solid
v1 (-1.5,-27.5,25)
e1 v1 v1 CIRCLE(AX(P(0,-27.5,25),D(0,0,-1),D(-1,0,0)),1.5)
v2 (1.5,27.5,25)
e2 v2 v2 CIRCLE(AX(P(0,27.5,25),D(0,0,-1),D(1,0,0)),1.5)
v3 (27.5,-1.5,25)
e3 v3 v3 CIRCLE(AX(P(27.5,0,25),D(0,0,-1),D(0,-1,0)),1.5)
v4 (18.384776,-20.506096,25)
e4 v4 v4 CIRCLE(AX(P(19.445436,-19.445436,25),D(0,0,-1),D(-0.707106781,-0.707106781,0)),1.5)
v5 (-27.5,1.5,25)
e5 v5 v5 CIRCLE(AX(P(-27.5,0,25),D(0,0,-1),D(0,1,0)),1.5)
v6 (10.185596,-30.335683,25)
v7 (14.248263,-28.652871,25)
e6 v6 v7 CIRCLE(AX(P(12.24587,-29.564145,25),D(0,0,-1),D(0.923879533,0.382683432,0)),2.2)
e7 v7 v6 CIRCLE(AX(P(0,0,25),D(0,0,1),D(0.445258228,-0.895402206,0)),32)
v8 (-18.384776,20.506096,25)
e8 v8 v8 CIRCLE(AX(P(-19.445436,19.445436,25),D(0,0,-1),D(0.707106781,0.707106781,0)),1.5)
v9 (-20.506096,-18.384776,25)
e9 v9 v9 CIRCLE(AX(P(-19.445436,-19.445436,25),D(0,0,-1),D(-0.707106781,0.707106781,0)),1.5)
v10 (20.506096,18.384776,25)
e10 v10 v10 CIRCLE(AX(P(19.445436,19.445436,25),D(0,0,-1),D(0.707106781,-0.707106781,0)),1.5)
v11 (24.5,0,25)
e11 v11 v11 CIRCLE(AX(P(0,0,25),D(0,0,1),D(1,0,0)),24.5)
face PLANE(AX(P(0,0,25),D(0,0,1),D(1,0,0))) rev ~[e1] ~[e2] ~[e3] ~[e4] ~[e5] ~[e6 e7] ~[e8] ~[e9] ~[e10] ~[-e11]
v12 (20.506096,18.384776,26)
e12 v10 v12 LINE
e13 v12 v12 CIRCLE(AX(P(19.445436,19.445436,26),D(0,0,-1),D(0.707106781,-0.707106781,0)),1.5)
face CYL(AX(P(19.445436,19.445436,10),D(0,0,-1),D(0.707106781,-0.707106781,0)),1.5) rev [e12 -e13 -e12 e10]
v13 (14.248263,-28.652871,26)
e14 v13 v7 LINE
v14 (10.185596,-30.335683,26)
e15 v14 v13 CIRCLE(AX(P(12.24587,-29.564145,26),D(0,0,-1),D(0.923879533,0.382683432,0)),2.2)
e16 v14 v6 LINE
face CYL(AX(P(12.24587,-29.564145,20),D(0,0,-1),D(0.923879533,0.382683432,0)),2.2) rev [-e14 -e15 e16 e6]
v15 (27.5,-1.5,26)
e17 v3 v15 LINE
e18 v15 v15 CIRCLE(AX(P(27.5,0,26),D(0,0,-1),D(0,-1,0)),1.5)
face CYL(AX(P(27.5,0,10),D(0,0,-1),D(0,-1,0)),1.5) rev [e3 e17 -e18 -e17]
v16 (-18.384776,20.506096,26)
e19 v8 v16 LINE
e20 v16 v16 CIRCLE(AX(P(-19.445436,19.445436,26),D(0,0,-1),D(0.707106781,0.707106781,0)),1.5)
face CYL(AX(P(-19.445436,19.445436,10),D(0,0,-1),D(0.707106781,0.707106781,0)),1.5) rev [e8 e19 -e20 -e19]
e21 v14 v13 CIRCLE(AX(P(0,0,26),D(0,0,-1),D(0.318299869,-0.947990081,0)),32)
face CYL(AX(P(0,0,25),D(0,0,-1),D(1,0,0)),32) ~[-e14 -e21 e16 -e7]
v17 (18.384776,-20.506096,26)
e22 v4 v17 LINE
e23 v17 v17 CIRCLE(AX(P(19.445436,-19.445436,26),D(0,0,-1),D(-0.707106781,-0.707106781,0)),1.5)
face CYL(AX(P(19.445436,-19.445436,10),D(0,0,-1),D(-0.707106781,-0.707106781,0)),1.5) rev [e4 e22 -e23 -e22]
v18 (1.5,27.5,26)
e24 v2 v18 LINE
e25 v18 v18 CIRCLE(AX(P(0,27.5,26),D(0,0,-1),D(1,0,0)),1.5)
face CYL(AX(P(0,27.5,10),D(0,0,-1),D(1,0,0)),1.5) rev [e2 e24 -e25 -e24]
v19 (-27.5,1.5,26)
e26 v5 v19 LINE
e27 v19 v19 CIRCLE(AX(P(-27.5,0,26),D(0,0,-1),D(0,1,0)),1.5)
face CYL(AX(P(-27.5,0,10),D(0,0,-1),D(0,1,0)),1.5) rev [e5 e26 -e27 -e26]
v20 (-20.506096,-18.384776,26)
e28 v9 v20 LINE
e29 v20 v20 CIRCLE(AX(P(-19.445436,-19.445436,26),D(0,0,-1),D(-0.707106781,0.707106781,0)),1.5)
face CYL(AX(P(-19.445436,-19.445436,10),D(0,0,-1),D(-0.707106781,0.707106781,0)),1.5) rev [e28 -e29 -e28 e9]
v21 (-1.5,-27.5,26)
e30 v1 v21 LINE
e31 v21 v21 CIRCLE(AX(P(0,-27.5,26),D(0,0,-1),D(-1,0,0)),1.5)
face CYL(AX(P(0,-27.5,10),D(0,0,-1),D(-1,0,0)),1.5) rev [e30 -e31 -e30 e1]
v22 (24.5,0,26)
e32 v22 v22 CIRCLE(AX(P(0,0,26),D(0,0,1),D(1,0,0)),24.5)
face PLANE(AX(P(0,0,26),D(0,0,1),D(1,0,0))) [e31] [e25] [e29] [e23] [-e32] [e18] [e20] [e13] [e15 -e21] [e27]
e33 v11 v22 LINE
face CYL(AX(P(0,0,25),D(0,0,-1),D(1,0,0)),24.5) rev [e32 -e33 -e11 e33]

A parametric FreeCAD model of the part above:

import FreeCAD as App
import Part
import Sketcher

V = App.Vector

doc = App.newDocument("Part")
body = doc.addObject("PartDesign::Body", "Body")

# Sketch on XY plane
sketch1 = body.newObject("Sketcher::SketchObject", "Sketch")
sketch1.AttachmentSupport = (doc.getObject("XY_Plane"), [""])
sketch1.MapMode = "FlatFace"
sketch1.addGeometry(Part.Circle(V(0, 0, 0), V(0, 0, 1), 1.5), False)
sketch1.addConstraint([
    Sketcher.Constraint("Coincident", 0, 3, -1, 1),
    Sketcher.Constraint("Diameter", 0, 3.0),
])
pad1 = body.newObject("PartDesign::Pad", "Pad")
pad1.Profile = sketch1
pad1.Length = 20
body2 = doc.addObject("PartDesign::Body", "Body001")
doc.recompute()

body.Placement = App.Placement(V(-19.445436, 19.445436, 10), App.Rotation(V(0, 0, 1), 45))
boolean = body2.newObject("PartDesign::Boolean", "Boolean")
boolean.Type = "Fuse"
boolean.addObjects([body])
body3 = doc.addObject("PartDesign::Body", "Body002")

# Sketch on XY plane
sketch2 = body3.newObject("Sketcher::SketchObject", "Sketch001")
sketch2.AttachmentSupport = (doc.getObject("XY_Plane002"), [""])
sketch2.MapMode = "FlatFace"
sketch2.AttachmentOffset = App.Placement(V(0, 0, 10), App.Rotation())
sketch2.addGeometry(Part.Circle(V(-27.5, 0, 0), V(0, 0, 1), 1.5), False)
sketch2.addConstraint([
    Sketcher.Constraint("PointOnObject", 0, 3, -1),
    Sketcher.Constraint("Diameter", 0, 3.0),
    Sketcher.Constraint("DistanceX", 0, 3, -1, 1, 27.5),
])
pad2 = body3.newObject("PartDesign::Pad", "Pad001")
pad2.Profile = sketch2
pad2.Length = 20
body4 = doc.addObject("PartDesign::Body", "Body003")

# Sketch on XY plane
sketch3 = body4.newObject("Sketcher::SketchObject", "Sketch002")
sketch3.AttachmentSupport = (doc.getObject("XY_Plane003"), [""])
sketch3.MapMode = "FlatFace"
sketch3.addGeometry(Part.Circle(V(0, 0, 0), V(0, 0, 1), 1.5), False)
sketch3.addConstraint([
    Sketcher.Constraint("Coincident", 0, 3, -1, 1),
    Sketcher.Constraint("Diameter", 0, 3.0),
])
pad3 = body4.newObject("PartDesign::Pad", "Pad002")
pad3.Profile = sketch3
pad3.Length = 20
body5 = doc.addObject("PartDesign::Body", "Body004")
doc.recompute()

body4.Placement = App.Placement(V(-19.445436, -19.445436, 10), App.Rotation(V(0, 0, 1), 135))
boolean2 = body5.newObject("PartDesign::Boolean", "Boolean001")
boolean2.Type = "Fuse"
boolean2.addObjects([body4])
body6 = doc.addObject("PartDesign::Body", "Body005")

# Sketch on XY plane
sketch4 = body6.newObject("Sketcher::SketchObject", "Sketch003")
sketch4.AttachmentSupport = (doc.getObject("XY_Plane005"), [""])
sketch4.MapMode = "FlatFace"
sketch4.AttachmentOffset = App.Placement(V(0, 0, 10), App.Rotation())
sketch4.addGeometry(Part.Circle(V(0, -27.5, 0), V(0, 0, 1), 1.5), False)
sketch4.addConstraint([
    Sketcher.Constraint("PointOnObject", 0, 3, -2),
    Sketcher.Constraint("Diameter", 0, 3.0),
    Sketcher.Constraint("DistanceY", 0, 3, -1, 1, 27.5),
])
pad4 = body6.newObject("PartDesign::Pad", "Pad003")
pad4.Profile = sketch4
pad4.Length = 20
body7 = doc.addObject("PartDesign::Body", "Body006")

# Sketch on XY plane
sketch5 = body7.newObject("Sketcher::SketchObject", "Sketch004")
sketch5.AttachmentSupport = (doc.getObject("XY_Plane006"), [""])
sketch5.MapMode = "FlatFace"
sketch5.AttachmentOffset = App.Placement(V(0, 0, 10), App.Rotation())
sketch5.addGeometry(Part.Circle(V(27.5, 0, 0), V(0, 0, 1), 1.5), False)
sketch5.addConstraint([
    Sketcher.Constraint("PointOnObject", 0, 3, -1),
    Sketcher.Constraint("Diameter", 0, 3.0),
    Sketcher.Constraint("DistanceX", -1, 1, 0, 3, 27.5),
])
pad5 = body7.newObject("PartDesign::Pad", "Pad004")
pad5.Profile = sketch5
pad5.Length = 20
body8 = doc.addObject("PartDesign::Body", "Body007")

# Sketch on XY plane
sketch6 = body8.newObject("Sketcher::SketchObject", "Sketch005")
sketch6.AttachmentSupport = (doc.getObject("XY_Plane007"), [""])
sketch6.MapMode = "FlatFace"
sketch6.addGeometry(Part.Circle(V(0, 0, 0), V(0, 0, 1), 1.5), False)
sketch6.addConstraint([
    Sketcher.Constraint("Coincident", 0, 3, -1, 1),
    Sketcher.Constraint("Diameter", 0, 3.0),
])
pad6 = body8.newObject("PartDesign::Pad", "Pad005")
pad6.Profile = sketch6
pad6.Length = 20
body9 = doc.addObject("PartDesign::Body", "Body008")
doc.recompute()

body8.Placement = App.Placement(V(19.445436, -19.445436, 10), App.Rotation(V(0, 0, 1), 225))
boolean3 = body9.newObject("PartDesign::Boolean", "Boolean002")
boolean3.Type = "Fuse"
boolean3.addObjects([body8])
body10 = doc.addObject("PartDesign::Body", "Body009")

# Sketch on XY plane
sketch7 = body10.newObject("Sketcher::SketchObject", "Sketch006")
sketch7.AttachmentSupport = (doc.getObject("XY_Plane009"), [""])
sketch7.MapMode = "FlatFace"
sketch7.addGeometry(Part.Circle(V(0, 0, 0), V(0, 0, 1), 1.5), False)
sketch7.addConstraint([
    Sketcher.Constraint("Coincident", 0, 3, -1, 1),
    Sketcher.Constraint("Diameter", 0, 3.0),
])
pad7 = body10.newObject("PartDesign::Pad", "Pad006")
pad7.Profile = sketch7
pad7.Length = 20
body11 = doc.addObject("PartDesign::Body", "Body010")
doc.recompute()

body10.Placement = App.Placement(V(19.445436, 19.445436, 10), App.Rotation(V(0, 0, -1), 45))
boolean4 = body11.newObject("PartDesign::Boolean", "Boolean003")
boolean4.Type = "Fuse"
boolean4.addObjects([body10])
body12 = doc.addObject("PartDesign::Body", "Body011")
body12.AllowCompound = True

# Sketch on XY plane
sketch8 = body12.newObject("Sketcher::SketchObject", "Sketch007")
sketch8.AttachmentSupport = (doc.getObject("XY_Plane011"), [""])
sketch8.MapMode = "FlatFace"
sketch8.AttachmentOffset = App.Placement(V(0, 0, 10), App.Rotation())
sketch8.addGeometry(Part.Circle(V(0, 27.5, 0), V(0, 0, 1), 1.5), False)
sketch8.addConstraint([
    Sketcher.Constraint("PointOnObject", 0, 3, -2),
    Sketcher.Constraint("Diameter", 0, 3.0),
    Sketcher.Constraint("DistanceY", -1, 1, 0, 3, 27.5),
])
pad8 = body12.newObject("PartDesign::Pad", "Pad007")
pad8.Profile = sketch8
pad8.Length = 20
doc.recompute()

boolean5 = body12.newObject("PartDesign::Boolean", "Boolean004")
boolean5.Type = "Fuse"
boolean5.addObjects([body2])
doc.recompute()

boolean6 = body12.newObject("PartDesign::Boolean", "Boolean005")
boolean6.Type = "Fuse"
boolean6.addObjects([body3])
doc.recompute()

boolean7 = body12.newObject("PartDesign::Boolean", "Boolean006")
boolean7.Type = "Fuse"
boolean7.addObjects([body5])
doc.recompute()

boolean8 = body12.newObject("PartDesign::Boolean", "Boolean007")
boolean8.Type = "Fuse"
boolean8.addObjects([body6])
doc.recompute()

boolean9 = body12.newObject("PartDesign::Boolean", "Boolean008")
boolean9.Type = "Fuse"
boolean9.addObjects([body7])
doc.recompute()

boolean10 = body12.newObject("PartDesign::Boolean", "Boolean009")
boolean10.Type = "Fuse"
boolean10.addObjects([body9])
doc.recompute()

boolean11 = body12.newObject("PartDesign::Boolean", "Boolean010")
boolean11.Type = "Fuse"
boolean11.addObjects([body11])
body13 = doc.addObject("PartDesign::Body", "Body012")

# Sketch on XY plane
sketch9 = body13.newObject("Sketcher::SketchObject", "Sketch008")
sketch9.AttachmentSupport = (doc.getObject("XY_Plane012"), [""])
sketch9.MapMode = "FlatFace"
sketch9.addGeometry(Part.Circle(V(0, 0, 0), V(0, 0, 1), 2.2), False)
sketch9.addConstraint([
    Sketcher.Constraint("Coincident", 0, 3, -1, 1),
    Sketcher.Constraint("Diameter", 0, 4.4),
])
pad9 = body13.newObject("PartDesign::Pad", "Pad008")
pad9.Profile = sketch9
pad9.Length = 15
body14 = doc.addObject("PartDesign::Body", "Body013")
doc.recompute()

body13.Placement = App.Placement(V(12.24587, -29.564145, 20), App.Rotation(V(0, 0, 1), 22.5))
boolean12 = body14.newObject("PartDesign::Boolean", "Boolean011")
boolean12.Type = "Fuse"
boolean12.addObjects([body13])
body15 = doc.addObject("PartDesign::Body", "Body014")

# Sketch on XY plane
sketch10 = body15.newObject("Sketcher::SketchObject", "Sketch009")
sketch10.AttachmentSupport = (doc.getObject("XY_Plane014"), [""])
sketch10.MapMode = "FlatFace"
sketch10.AttachmentOffset = App.Placement(V(0, 0, 25), App.Rotation())
sketch10.addGeometry([
    Part.Circle(V(0, 0, 0), V(0, 0, 1), 32),
    Part.Circle(V(0, 0, 0), V(0, 0, 1), 24),
], False)
sketch10.addConstraint([
    Sketcher.Constraint("Coincident", 0, 3, -1, 1),
    Sketcher.Constraint("Coincident", 1, 3, -1, 1),
    Sketcher.Constraint("Diameter", 0, 64.0),
    Sketcher.Constraint("Diameter", 1, 49.0),
])
pad10 = body15.newObject("PartDesign::Pad", "Pad009")
pad10.Profile = sketch10
pad10.Length = 1
doc.recompute()

boolean13 = body15.newObject("PartDesign::Boolean", "Boolean012")
boolean13.Type = "Cut"
boolean13.addObjects([body14])
doc.recompute()

boolean14 = body15.newObject("PartDesign::Boolean", "Boolean013")
boolean14.Type = "Cut"
boolean14.addObjects([body12])

doc.recompute()
